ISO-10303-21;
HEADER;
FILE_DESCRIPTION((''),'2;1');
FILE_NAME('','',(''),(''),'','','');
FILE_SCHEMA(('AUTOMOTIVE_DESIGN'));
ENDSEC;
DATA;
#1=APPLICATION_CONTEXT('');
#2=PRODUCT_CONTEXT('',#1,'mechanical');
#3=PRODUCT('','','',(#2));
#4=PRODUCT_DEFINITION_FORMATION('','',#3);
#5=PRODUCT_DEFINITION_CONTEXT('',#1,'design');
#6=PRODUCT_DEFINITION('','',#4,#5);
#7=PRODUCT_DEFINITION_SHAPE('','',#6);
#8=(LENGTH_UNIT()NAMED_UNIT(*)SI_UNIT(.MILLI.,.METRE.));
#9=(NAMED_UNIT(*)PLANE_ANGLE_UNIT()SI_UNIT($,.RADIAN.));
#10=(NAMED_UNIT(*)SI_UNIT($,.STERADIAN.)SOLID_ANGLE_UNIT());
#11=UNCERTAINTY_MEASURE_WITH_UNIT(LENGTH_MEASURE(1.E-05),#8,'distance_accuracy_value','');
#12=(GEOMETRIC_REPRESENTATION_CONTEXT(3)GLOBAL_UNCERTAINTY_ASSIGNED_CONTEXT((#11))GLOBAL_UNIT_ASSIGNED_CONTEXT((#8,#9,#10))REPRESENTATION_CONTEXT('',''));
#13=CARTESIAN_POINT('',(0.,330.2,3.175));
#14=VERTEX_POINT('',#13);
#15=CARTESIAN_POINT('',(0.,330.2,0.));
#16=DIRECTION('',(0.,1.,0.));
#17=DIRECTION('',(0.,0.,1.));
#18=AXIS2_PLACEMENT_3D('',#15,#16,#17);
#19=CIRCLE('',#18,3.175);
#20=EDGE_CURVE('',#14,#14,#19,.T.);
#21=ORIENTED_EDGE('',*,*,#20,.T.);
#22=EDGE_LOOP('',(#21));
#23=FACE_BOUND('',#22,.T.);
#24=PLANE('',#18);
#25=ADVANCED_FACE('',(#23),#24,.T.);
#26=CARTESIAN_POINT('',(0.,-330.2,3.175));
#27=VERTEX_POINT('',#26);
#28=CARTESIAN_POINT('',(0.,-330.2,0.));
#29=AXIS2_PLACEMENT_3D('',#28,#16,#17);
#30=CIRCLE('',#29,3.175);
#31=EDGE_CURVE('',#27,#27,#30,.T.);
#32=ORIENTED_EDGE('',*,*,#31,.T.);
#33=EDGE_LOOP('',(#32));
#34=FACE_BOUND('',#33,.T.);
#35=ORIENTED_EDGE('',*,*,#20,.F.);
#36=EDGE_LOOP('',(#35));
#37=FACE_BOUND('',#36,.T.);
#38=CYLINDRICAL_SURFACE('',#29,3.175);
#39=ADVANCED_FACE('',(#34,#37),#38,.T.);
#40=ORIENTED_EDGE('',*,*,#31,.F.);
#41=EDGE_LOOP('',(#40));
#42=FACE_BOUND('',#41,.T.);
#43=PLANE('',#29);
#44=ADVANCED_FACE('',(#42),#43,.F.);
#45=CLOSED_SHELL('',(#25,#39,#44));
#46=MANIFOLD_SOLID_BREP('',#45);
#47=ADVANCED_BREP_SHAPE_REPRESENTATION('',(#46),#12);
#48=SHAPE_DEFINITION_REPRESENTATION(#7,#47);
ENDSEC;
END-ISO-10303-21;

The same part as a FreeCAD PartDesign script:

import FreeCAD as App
import Part
import Sketcher
Q = App.Units.Quantity

doc = App.newDocument("Part")
body = doc.addObject("PartDesign::Body", "Body")

# Sketch on XZ plane
sketch1 = doc.addObject("Sketcher::SketchObject", "Sketch")
body.addObject(sketch1)
sketch1.AttachmentSupport = (doc.XZ_Plane, [""])
sketch1.MapMode = "FlatFace"
sketch1.addGeometry(Part.Circle(App.Vector(0, 0, 0), App.Vector(0, 0, 1), 3.2), False)
sketch1.addConstraint([
    Sketcher.Constraint("Coincident", 0, 3, -1, 1),
    Sketcher.Constraint("Diameter", 0, Q("0.25 in")),
])
pad1 = doc.addObject("PartDesign::Pad", "Pad")
body.addObject(pad1)
pad1.Profile = sketch1
pad1.Type = "TwoLengths"
pad1.Length = Q("13 in")
pad1.Length2 = Q("13 in")
pad1.Reversed = True

doc.recompute()
